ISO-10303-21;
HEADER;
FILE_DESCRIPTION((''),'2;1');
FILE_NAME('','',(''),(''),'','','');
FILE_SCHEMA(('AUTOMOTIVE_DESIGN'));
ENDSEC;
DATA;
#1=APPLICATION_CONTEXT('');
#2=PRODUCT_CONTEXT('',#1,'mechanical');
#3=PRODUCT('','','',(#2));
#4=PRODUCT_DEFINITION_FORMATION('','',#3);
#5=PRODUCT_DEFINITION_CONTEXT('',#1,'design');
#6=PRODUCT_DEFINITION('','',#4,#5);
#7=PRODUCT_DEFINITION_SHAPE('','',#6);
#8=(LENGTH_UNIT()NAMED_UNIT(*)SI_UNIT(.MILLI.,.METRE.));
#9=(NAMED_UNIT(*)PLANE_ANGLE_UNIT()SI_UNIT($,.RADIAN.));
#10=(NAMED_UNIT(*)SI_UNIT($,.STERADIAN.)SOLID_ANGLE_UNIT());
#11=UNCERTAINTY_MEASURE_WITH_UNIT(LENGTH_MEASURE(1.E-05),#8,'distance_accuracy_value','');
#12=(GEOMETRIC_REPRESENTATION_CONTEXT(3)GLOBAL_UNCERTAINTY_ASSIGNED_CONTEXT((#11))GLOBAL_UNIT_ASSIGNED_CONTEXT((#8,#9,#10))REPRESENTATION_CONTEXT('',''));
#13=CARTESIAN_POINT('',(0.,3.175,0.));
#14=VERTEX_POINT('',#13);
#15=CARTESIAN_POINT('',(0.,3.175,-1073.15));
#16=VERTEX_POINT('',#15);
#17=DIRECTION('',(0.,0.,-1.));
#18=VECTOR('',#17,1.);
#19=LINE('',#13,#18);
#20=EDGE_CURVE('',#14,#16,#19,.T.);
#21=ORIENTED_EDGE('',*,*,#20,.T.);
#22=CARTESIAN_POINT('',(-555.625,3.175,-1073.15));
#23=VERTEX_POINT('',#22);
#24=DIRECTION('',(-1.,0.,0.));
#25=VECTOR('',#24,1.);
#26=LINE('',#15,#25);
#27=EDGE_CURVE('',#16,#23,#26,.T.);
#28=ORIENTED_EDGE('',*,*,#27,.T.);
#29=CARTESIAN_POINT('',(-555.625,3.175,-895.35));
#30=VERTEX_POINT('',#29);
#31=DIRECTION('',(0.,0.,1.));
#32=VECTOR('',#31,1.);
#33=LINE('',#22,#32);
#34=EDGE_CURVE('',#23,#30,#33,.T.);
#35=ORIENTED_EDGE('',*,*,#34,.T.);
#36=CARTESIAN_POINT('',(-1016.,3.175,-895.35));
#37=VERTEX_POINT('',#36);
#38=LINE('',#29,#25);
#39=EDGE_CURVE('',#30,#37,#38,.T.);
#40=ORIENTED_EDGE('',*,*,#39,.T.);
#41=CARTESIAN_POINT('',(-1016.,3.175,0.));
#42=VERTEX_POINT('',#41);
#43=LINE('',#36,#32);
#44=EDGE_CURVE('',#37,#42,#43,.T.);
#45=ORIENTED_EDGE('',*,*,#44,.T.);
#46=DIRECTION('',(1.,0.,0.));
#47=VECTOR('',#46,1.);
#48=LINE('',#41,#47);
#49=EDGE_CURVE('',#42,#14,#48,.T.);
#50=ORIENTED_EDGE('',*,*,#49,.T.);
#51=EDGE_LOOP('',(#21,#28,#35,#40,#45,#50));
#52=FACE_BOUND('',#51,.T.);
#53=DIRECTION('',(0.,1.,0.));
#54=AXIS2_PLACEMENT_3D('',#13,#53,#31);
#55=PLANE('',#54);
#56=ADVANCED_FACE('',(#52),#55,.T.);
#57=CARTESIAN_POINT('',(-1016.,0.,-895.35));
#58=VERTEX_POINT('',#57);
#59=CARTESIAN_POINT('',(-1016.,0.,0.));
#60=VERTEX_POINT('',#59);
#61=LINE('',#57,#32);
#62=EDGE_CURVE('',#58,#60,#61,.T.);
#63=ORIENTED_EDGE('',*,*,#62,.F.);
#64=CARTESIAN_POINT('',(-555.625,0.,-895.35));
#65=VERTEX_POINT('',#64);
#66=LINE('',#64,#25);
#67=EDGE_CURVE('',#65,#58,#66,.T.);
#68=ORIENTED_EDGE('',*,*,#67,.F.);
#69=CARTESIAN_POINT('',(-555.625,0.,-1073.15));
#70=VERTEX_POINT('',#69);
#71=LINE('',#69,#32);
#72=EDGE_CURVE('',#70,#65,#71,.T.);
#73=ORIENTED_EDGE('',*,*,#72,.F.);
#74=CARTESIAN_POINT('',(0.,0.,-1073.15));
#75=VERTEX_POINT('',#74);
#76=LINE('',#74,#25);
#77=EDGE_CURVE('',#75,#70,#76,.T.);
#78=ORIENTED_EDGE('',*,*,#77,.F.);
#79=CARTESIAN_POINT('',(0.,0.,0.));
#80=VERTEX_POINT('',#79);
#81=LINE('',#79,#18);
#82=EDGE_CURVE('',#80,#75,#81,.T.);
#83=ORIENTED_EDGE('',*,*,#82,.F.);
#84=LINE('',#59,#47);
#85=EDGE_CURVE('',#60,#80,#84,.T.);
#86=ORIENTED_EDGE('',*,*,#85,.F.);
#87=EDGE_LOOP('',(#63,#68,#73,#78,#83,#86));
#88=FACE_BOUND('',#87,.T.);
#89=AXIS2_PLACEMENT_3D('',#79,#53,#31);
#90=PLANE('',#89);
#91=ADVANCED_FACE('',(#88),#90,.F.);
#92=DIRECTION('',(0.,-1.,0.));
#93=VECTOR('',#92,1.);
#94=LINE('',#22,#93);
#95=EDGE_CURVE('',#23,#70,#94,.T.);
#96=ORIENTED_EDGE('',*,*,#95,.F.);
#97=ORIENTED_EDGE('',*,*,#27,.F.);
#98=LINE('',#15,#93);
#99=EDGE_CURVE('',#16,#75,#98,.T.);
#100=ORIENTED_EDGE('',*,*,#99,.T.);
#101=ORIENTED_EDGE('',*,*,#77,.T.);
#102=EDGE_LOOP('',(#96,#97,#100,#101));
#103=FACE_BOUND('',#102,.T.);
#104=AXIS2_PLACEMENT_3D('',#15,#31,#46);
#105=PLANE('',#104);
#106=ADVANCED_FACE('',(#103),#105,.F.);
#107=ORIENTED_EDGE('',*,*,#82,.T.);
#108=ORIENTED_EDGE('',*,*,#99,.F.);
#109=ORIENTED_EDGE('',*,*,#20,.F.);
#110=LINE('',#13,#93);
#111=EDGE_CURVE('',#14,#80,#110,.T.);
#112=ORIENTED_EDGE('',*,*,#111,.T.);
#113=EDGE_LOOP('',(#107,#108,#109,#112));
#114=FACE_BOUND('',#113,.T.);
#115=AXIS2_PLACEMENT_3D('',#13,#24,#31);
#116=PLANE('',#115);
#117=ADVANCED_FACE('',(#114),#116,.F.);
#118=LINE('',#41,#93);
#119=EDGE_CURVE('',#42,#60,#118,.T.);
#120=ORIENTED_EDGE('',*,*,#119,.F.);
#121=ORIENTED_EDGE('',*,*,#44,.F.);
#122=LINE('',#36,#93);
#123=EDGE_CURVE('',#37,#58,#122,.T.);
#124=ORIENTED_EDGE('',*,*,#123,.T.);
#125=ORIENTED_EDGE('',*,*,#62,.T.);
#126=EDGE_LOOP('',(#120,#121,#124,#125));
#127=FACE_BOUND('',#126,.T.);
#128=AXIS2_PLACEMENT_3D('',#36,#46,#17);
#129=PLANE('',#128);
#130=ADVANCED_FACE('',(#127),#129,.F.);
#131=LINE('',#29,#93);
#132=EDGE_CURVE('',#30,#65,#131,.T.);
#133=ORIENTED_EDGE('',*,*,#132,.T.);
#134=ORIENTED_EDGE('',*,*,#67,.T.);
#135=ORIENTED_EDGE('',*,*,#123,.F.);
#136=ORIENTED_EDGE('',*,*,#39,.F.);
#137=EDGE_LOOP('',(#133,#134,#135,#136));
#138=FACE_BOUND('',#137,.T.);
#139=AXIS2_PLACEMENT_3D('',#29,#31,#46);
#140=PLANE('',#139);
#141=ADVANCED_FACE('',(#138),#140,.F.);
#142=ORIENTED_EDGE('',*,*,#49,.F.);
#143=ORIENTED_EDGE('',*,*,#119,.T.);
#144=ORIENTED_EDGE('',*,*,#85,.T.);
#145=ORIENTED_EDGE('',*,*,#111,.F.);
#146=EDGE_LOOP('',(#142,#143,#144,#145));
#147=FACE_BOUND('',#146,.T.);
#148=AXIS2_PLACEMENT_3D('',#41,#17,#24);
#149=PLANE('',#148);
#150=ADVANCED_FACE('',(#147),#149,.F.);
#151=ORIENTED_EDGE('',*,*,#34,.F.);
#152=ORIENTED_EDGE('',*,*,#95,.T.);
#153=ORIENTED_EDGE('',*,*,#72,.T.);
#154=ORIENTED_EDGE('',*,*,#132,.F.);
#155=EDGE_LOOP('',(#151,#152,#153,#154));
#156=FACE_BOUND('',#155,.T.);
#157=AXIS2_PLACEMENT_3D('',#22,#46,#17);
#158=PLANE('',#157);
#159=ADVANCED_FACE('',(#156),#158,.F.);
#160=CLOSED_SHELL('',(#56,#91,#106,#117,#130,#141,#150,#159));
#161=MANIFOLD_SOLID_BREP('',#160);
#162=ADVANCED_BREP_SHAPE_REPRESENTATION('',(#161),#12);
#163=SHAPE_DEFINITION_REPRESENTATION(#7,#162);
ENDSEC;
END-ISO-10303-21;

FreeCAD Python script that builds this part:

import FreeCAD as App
import Part
import Sketcher

V = App.Vector
Q = App.Units.Quantity

doc = App.newDocument("Part")
body = doc.addObject("PartDesign::Body", "Body")

# Sketch on XZ plane
sketch1 = body.newObject("Sketcher::SketchObject", "Sketch")
sketch1.AttachmentSupport = (doc.getObject("XZ_Plane"), [""])
sketch1.MapMode = "FlatFace"
sketch1.addGeometry(Part.LineSegment(V(0, 0, 0), V(0, -1073, 0)), False)
sketch1.addGeometry(Part.LineSegment(V(0, -1073, 0), V(-556, -1073, 0)), False)
sketch1.addGeometry(Part.LineSegment(V(-556, -1073, 0), V(-556, -895, 0)), False)
sketch1.addGeometry(Part.LineSegment(V(-556, -895, 0), V(-1016, -895, 0)), False)
sketch1.addGeometry(Part.LineSegment(V(-1016, -895, 0), V(-1016, 0, 0)), False)
sketch1.addGeometry(Part.LineSegment(V(-1016, 0, 0), V(0, 0, 0)), False)
sketch1.addConstraint(Sketcher.Constraint("Coincident", 0, 2, 1, 1))
sketch1.addConstraint(Sketcher.Constraint("Coincident", 1, 2, 2, 1))
sketch1.addConstraint(Sketcher.Constraint("Coincident", 2, 2, 3, 1))
sketch1.addConstraint(Sketcher.Constraint("Coincident", 3, 2, 4, 1))
sketch1.addConstraint(Sketcher.Constraint("Coincident", 4, 2, 5, 1))
sketch1.addConstraint(Sketcher.Constraint("Coincident", 5, 2, 0, 1))
sketch1.addConstraint(Sketcher.Constraint("Vertical", 0))
sketch1.addConstraint(Sketcher.Constraint("Horizontal", 1))
sketch1.addConstraint(Sketcher.Constraint("Vertical", 2))
sketch1.addConstraint(Sketcher.Constraint("Horizontal", 3))
sketch1.addConstraint(Sketcher.Constraint("Vertical", 4))
sketch1.addConstraint(Sketcher.Constraint("Horizontal", 5))
sketch1.addConstraint(Sketcher.Constraint("Coincident", 5, 2, -1, 1))
sketch1.addConstraint(Sketcher.Constraint("DistanceX", 5, 1, 5, 2, Q("40 in")))
sketch1.addConstraint(Sketcher.Constraint("DistanceY", 2, 1, 2, 2, Q("7 in")))
sketch1.addConstraint(Sketcher.Constraint("DistanceY", 0, 2, 0, 1, Q("42.25 in")))
sketch1.addConstraint(Sketcher.Constraint("DistanceX", 1, 2, 1, 1, Q("21.875 in")))
pad1 = body.newObject("PartDesign::Pad", "Pad")
pad1.Profile = sketch1
pad1.Length = Q("0.125 in")
pad1.Reversed = True

doc.recompute()
